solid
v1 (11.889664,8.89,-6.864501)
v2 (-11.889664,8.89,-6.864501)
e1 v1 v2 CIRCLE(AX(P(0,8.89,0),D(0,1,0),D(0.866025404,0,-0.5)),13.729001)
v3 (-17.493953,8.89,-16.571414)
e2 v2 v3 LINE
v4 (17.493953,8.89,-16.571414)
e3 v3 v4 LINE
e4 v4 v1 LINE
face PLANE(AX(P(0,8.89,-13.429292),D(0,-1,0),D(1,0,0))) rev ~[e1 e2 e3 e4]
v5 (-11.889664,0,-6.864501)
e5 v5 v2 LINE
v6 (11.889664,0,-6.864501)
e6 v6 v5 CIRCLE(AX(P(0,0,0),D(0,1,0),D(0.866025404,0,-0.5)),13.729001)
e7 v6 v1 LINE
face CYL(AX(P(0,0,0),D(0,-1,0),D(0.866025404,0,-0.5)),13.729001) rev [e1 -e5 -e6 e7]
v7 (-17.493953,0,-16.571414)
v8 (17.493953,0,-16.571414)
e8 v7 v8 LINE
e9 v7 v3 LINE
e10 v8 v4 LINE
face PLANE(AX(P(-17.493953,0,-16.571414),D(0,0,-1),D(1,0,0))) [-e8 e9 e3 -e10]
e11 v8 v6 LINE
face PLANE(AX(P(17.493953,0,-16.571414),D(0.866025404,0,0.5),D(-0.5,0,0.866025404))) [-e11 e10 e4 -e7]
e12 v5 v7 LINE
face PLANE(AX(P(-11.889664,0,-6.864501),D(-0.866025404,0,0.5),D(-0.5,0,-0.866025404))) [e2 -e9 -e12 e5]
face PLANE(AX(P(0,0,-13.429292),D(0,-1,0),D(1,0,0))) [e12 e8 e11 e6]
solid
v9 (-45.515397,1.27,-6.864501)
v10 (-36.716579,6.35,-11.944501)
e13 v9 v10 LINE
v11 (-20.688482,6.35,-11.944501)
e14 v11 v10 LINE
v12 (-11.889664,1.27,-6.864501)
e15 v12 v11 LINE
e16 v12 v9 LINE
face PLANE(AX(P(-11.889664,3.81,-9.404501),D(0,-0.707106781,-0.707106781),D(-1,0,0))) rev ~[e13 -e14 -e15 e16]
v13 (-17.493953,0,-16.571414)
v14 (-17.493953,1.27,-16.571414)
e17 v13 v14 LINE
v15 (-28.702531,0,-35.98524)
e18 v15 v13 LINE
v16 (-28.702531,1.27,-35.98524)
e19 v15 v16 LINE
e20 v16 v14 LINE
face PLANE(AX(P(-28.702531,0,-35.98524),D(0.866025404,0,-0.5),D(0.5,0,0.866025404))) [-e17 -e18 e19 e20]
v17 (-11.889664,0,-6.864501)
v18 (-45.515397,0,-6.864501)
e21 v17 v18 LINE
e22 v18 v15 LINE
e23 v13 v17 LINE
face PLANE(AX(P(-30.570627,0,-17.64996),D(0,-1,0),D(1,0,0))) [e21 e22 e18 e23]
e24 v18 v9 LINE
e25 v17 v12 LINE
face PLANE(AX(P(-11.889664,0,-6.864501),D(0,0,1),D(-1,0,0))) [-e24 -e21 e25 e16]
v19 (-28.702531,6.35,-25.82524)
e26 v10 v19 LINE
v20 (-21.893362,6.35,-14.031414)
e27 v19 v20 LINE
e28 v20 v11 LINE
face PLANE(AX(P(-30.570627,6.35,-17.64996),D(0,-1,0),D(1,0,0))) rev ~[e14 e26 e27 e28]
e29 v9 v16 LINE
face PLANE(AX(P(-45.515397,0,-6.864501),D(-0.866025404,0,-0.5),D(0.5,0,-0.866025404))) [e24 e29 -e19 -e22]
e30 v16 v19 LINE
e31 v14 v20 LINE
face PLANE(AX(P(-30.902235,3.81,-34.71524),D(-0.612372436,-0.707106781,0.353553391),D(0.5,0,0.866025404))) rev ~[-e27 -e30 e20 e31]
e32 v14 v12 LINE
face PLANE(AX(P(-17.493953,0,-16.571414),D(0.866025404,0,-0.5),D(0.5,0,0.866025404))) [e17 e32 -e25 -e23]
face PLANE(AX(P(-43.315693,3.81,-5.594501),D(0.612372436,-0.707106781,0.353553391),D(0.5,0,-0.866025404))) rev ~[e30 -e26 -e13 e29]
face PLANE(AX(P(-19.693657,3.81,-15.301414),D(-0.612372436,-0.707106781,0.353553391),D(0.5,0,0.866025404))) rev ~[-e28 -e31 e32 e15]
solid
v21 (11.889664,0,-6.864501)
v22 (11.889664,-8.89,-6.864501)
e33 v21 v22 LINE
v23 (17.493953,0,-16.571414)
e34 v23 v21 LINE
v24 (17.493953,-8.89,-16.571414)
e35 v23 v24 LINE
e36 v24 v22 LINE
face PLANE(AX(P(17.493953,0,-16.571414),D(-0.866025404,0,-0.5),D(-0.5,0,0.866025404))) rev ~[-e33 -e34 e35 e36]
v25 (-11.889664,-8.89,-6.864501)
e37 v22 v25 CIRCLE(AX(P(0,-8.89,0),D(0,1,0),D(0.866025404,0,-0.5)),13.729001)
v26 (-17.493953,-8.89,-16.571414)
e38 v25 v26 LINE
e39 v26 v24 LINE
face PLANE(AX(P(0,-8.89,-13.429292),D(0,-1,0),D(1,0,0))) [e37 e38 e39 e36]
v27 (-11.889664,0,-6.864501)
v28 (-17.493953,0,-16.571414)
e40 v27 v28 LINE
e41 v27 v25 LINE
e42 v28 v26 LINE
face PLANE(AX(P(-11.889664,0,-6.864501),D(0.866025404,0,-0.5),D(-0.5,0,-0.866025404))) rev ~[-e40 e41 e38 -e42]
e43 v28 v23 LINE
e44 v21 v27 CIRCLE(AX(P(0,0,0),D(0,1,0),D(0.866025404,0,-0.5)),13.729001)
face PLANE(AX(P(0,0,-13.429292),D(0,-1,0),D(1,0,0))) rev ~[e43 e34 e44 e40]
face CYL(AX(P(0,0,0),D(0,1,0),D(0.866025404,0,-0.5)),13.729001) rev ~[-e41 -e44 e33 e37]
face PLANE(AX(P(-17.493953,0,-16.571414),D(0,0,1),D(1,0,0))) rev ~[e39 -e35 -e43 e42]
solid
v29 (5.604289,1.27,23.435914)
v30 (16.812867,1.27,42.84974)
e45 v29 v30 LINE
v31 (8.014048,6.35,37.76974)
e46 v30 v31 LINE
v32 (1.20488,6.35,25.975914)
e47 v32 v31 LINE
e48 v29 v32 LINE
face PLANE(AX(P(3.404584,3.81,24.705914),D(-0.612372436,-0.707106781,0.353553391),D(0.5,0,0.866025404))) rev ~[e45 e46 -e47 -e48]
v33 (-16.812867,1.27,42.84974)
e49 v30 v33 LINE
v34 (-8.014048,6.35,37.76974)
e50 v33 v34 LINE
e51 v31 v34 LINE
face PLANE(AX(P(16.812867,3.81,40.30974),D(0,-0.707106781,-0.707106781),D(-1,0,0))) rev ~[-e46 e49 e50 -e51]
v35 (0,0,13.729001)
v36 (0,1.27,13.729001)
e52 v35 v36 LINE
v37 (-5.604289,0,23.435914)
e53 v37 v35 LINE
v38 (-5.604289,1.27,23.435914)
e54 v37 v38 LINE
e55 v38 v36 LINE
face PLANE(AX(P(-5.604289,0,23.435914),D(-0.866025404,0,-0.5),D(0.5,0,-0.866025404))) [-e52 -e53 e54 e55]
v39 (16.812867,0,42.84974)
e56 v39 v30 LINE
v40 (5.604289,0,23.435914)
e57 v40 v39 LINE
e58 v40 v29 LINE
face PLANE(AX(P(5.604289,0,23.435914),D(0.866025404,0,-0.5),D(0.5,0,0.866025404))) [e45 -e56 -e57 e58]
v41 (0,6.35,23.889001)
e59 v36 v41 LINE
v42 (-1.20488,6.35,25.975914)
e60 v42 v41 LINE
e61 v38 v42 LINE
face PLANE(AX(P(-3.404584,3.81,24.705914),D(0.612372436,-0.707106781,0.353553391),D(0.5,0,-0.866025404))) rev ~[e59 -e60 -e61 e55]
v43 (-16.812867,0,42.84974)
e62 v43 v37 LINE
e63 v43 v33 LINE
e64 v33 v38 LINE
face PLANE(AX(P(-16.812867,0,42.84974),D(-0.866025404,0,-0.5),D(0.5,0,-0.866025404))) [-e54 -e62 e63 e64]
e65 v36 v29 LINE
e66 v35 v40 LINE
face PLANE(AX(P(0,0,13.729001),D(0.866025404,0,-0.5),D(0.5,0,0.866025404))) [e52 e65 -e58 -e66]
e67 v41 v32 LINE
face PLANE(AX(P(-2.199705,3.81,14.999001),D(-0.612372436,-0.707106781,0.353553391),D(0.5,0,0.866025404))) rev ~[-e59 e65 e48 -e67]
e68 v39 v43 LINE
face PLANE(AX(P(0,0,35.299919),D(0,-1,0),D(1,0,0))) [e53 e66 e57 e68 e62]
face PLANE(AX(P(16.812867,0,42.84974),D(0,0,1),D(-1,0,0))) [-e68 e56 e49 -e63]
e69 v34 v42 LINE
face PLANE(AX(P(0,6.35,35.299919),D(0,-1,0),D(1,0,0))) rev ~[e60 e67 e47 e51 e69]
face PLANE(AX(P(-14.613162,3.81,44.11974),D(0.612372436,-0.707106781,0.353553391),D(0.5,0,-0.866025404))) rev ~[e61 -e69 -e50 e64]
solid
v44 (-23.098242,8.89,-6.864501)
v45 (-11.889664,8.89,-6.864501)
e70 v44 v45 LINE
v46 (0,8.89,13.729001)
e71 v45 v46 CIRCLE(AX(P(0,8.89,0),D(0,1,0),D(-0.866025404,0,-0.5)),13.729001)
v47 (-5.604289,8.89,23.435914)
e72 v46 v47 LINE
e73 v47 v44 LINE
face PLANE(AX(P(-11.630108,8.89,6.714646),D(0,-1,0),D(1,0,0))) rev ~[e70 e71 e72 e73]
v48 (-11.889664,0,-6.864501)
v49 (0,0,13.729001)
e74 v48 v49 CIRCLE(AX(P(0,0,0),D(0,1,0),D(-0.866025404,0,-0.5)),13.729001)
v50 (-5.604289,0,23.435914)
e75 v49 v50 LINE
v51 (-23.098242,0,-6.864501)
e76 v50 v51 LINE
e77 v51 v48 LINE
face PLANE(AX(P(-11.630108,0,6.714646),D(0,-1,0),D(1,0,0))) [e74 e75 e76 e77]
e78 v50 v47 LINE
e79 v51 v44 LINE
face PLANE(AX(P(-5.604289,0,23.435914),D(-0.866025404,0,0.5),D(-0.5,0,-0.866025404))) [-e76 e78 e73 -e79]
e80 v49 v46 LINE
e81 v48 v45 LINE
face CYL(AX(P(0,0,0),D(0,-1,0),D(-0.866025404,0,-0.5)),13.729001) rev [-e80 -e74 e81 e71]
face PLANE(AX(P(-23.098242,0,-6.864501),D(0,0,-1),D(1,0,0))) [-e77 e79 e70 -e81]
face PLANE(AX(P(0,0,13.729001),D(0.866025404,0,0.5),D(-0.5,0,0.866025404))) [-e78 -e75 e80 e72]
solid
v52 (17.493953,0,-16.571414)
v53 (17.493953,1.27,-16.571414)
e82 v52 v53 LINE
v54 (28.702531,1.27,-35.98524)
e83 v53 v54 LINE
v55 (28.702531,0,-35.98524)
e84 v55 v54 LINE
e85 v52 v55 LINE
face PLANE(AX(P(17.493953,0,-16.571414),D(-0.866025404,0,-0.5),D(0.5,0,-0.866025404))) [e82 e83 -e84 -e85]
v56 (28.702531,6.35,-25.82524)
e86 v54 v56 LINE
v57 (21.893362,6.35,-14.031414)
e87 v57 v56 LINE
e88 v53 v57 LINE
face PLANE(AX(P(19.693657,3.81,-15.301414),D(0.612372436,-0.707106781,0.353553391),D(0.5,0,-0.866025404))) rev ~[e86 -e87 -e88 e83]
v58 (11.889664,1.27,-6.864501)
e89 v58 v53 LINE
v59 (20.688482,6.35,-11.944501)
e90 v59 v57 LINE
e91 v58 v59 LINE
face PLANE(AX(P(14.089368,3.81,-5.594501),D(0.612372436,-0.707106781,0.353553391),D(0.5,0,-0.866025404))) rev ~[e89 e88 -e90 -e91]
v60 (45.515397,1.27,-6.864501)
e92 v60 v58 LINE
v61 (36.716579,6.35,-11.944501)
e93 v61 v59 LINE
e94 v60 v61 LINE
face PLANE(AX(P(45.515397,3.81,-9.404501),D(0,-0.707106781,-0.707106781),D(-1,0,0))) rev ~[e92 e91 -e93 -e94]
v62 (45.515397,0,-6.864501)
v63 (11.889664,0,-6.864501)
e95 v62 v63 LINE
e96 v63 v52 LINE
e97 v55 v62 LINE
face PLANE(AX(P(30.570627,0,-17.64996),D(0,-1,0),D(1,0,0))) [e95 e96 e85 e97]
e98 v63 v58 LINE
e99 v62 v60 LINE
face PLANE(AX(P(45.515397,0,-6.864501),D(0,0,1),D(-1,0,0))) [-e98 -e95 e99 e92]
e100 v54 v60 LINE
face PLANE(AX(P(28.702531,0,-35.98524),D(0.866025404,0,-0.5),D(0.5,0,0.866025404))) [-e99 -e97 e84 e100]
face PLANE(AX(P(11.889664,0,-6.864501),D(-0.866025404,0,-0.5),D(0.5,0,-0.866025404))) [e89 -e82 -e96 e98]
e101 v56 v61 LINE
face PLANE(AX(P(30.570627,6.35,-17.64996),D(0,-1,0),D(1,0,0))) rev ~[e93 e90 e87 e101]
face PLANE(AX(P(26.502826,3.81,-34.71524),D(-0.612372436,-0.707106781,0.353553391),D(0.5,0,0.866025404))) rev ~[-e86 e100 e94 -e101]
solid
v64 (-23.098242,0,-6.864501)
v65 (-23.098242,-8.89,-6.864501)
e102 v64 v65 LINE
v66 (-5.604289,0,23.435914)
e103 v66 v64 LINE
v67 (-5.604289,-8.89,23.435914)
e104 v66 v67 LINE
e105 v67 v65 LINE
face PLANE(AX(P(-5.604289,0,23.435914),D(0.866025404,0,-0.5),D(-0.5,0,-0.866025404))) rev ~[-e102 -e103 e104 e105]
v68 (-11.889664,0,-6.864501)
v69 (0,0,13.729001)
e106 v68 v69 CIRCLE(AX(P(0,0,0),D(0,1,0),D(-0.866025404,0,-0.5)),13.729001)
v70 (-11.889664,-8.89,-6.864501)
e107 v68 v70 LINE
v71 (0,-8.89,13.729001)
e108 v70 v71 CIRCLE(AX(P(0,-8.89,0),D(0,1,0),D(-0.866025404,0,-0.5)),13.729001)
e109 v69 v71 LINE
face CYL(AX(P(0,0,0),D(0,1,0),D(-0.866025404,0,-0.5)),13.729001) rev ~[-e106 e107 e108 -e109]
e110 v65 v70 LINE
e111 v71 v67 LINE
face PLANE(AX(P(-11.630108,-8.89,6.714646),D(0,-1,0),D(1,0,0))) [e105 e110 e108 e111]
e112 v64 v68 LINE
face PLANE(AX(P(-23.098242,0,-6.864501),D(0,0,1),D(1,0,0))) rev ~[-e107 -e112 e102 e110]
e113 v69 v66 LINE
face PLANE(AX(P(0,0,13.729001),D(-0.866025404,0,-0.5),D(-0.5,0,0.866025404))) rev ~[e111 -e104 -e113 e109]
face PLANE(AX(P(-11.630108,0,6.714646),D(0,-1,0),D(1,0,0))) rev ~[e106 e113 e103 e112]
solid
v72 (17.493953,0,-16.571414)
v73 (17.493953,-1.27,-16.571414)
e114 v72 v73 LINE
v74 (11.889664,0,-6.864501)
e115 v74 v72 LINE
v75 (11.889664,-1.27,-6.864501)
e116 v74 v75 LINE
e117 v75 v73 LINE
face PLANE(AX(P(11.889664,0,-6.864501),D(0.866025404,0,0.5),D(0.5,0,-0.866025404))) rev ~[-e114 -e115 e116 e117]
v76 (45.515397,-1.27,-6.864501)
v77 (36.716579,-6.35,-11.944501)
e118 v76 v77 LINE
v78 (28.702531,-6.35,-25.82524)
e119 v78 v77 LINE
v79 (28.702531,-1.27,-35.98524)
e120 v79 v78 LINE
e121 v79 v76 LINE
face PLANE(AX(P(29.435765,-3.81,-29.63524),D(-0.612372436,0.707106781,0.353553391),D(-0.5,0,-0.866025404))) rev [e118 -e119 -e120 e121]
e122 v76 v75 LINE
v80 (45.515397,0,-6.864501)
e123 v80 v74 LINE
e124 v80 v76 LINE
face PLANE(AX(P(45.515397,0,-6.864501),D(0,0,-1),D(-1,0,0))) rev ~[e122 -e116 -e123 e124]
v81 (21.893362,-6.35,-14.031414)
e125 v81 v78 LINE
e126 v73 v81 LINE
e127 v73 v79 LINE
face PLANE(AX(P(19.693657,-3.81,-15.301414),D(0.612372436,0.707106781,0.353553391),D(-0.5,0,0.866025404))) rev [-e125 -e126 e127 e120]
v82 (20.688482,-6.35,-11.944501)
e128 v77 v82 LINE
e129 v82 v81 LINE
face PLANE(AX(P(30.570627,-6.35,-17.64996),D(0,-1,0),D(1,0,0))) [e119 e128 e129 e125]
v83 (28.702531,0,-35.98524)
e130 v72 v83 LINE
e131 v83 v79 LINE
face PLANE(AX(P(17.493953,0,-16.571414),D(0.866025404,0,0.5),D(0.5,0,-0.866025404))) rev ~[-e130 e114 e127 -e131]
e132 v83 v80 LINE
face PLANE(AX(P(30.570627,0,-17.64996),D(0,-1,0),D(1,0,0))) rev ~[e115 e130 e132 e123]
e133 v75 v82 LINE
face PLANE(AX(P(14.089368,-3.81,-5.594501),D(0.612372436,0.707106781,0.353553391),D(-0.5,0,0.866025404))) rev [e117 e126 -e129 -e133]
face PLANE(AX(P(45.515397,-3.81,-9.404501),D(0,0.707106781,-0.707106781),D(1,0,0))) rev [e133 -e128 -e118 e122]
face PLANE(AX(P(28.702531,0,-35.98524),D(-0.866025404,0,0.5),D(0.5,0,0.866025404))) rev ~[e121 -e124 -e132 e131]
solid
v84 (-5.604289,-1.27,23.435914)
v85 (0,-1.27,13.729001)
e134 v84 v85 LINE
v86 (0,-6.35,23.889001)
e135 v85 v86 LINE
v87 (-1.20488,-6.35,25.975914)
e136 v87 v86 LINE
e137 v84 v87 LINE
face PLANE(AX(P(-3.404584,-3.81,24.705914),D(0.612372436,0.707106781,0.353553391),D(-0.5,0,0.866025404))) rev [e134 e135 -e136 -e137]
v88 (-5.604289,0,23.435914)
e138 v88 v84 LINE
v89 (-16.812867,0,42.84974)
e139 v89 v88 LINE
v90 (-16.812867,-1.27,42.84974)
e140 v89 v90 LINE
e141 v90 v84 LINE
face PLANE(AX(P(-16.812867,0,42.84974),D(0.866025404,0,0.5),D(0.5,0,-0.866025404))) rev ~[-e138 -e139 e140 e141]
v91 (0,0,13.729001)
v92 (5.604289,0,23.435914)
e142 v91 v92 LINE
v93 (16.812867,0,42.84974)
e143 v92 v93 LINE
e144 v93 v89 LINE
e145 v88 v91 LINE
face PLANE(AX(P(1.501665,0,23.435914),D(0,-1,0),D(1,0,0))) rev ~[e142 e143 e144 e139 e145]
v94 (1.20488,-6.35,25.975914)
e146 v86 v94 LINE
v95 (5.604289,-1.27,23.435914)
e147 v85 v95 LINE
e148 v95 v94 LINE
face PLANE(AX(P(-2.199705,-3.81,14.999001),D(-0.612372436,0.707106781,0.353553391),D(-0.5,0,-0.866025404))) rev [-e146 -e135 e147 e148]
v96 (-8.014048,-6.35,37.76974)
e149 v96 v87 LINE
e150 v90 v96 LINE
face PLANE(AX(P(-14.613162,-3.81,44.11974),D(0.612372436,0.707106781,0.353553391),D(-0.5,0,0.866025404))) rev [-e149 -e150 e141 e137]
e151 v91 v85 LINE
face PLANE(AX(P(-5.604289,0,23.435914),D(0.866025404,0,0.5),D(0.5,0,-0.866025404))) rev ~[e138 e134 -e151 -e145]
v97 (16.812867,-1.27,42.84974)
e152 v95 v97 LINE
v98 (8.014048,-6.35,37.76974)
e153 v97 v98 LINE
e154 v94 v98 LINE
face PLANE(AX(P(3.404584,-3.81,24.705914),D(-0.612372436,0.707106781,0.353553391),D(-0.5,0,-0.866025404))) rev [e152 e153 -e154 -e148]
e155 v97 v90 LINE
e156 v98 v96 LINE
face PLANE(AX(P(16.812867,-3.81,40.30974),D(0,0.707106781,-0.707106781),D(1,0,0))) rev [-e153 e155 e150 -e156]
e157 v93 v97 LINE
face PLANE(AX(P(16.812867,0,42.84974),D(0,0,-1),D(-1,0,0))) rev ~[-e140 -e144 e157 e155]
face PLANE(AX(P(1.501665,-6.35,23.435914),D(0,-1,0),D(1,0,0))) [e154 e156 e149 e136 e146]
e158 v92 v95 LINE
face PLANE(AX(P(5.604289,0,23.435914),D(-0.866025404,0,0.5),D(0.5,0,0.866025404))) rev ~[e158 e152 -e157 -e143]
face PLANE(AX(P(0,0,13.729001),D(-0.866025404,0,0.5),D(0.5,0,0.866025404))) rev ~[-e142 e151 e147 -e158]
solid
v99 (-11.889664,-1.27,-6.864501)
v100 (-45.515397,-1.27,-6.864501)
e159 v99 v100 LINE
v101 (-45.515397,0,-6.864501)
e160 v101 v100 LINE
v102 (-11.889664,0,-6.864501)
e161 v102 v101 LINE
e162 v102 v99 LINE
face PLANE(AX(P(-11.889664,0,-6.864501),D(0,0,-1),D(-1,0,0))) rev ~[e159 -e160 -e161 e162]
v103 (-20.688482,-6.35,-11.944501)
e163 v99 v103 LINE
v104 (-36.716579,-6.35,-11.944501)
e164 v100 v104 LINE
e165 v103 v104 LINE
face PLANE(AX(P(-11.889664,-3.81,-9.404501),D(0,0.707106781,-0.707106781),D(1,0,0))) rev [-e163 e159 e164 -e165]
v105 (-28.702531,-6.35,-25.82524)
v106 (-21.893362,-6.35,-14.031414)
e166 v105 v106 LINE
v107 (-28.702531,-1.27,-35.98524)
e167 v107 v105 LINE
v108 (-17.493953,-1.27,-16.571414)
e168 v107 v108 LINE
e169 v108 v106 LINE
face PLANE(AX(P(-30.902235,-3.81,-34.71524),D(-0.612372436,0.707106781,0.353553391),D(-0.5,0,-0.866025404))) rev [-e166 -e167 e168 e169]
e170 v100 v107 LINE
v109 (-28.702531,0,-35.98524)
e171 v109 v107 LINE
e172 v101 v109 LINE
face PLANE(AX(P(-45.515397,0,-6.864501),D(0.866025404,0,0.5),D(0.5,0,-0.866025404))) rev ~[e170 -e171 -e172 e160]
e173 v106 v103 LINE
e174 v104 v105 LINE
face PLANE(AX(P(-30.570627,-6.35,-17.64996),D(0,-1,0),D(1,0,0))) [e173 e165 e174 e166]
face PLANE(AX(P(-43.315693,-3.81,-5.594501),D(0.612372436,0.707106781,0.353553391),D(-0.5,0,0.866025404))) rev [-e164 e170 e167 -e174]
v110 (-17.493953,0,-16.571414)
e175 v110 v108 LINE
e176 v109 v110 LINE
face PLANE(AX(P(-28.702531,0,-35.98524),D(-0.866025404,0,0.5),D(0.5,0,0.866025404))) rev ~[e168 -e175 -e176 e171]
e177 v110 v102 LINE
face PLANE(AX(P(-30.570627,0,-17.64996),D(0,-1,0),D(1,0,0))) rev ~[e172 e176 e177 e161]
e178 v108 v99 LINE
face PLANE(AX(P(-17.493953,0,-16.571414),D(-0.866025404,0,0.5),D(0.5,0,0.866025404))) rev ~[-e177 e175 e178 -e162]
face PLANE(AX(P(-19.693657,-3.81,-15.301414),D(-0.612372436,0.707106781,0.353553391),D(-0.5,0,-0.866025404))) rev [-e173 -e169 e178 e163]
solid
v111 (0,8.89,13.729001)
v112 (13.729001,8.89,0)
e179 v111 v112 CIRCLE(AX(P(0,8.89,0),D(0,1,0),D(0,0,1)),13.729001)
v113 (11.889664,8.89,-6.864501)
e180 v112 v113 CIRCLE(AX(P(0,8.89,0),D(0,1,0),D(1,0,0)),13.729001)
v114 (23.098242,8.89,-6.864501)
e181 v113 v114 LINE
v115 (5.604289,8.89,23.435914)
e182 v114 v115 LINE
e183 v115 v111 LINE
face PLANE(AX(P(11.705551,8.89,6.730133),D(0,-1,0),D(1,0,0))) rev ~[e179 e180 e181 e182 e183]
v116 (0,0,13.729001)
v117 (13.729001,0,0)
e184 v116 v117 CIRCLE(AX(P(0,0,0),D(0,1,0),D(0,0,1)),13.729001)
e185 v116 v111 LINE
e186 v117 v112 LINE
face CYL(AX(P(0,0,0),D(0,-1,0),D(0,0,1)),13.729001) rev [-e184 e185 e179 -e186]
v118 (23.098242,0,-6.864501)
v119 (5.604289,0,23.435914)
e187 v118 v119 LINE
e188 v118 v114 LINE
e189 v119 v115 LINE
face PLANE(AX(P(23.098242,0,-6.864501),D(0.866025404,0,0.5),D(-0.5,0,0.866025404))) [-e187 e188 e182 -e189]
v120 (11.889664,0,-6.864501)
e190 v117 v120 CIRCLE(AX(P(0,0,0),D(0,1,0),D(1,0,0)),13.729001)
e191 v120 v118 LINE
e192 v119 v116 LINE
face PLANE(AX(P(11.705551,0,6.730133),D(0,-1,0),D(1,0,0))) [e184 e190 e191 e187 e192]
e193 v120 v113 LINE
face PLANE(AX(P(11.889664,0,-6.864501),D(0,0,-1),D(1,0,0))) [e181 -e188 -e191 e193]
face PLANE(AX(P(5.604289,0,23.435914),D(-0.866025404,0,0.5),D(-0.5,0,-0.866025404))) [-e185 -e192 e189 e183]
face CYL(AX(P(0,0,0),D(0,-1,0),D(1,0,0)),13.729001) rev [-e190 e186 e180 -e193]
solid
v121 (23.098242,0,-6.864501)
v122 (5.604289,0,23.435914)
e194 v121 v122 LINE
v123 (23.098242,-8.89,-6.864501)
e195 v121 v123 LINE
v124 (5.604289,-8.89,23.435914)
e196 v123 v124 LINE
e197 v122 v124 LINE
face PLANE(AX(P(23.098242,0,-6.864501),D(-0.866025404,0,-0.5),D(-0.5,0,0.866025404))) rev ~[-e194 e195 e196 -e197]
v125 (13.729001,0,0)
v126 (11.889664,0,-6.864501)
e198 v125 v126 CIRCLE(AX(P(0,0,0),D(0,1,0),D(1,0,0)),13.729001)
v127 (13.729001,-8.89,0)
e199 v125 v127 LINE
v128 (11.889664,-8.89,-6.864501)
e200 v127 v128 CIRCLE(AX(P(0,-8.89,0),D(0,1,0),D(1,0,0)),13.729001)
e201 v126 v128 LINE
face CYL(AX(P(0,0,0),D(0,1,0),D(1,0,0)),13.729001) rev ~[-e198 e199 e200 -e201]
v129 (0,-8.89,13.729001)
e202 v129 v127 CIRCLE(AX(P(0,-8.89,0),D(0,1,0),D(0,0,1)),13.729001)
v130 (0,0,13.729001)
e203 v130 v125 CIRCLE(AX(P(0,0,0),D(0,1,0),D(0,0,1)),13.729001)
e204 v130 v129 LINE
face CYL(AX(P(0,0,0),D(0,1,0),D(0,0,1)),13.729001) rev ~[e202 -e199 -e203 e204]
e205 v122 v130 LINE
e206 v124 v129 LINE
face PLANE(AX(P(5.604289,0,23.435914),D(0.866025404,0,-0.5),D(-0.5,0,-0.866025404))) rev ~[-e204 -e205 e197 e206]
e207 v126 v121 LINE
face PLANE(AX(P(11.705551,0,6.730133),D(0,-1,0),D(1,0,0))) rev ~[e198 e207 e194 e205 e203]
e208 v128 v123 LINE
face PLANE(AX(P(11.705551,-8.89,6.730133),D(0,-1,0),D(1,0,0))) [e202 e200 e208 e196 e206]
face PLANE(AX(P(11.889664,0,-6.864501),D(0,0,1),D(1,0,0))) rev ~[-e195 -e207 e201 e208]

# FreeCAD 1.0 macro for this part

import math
import FreeCAD as App
import Part
import Sketcher
Q = App.Units.Quantity


def edges_at(feature, points):
    """Names of the edges that pass closest to the given points."""
    edges = feature.Shape.Edges
    near = lambda p: min(range(len(edges)), key=lambda i: edges[i].distToShape(Part.Vertex(*p))[0])
    return sorted({f"Edge{near(p) + 1}" for p in points})

doc = App.newDocument("Part")
body = doc.addObject("PartDesign::Body", "Body")

sketch1 = doc.addObject("Sketcher::SketchObject", "Sketch")
body.addObject(sketch1)
sketch1.AttachmentSupport = (doc.XZ_Plane, [""])
sketch1.MapMode = "FlatFace"
sketch1.addGeometry([
    Part.LineSegment(App.Vector(46, -7, 0), App.Vector(12, -7, 0)),
    Part.LineSegment(App.Vector(12, -7, 0), App.Vector(17, -17, 0)),
    Part.LineSegment(App.Vector(17, -17, 0), App.Vector(29, -36, 0)),
    Part.LineSegment(App.Vector(29, -36, 0), App.Vector(46, -7, 0)),
], False)
sketch1.addConstraint([
    Sketcher.Constraint("Coincident", 0, 2, 1, 1),
    Sketcher.Constraint("Coincident", 1, 2, 2, 1),
    Sketcher.Constraint("Coincident", 2, 2, 3, 1),
    Sketcher.Constraint("Coincident", 3, 2, 0, 1),
    Sketcher.Constraint("Horizontal", 0),
    Sketcher.Constraint("Parallel", 1, 2),
    Sketcher.Constraint("Angle", 1, Q("-60 deg")),
    Sketcher.Constraint("Angle", 3, Q("60 deg")),
    Sketcher.Constraint("DistanceY", 0, 2, -1, 1, 6.864501),
    Sketcher.Constraint("DistanceX", 0, 2, 0, 1, 33.625733),
    Sketcher.Constraint("DistanceX", -1, 1, 2, 2, 28.702531),
    Sketcher.Constraint("DistanceX", 0, 2, 1, 2, 5.604289),
])
pad1 = doc.addObject("PartDesign::Pad", "Pad")
body.addObject(pad1)
pad1.Profile = sketch1
pad1.Length = Q("0.25 in")
doc.recompute()

chamfer = doc.addObject("PartDesign::Chamfer", "Chamfer")
body.addObject(chamfer)
chamfer.Base = (pad1, edges_at(pad1, [(28.703, -6.35, -6.865), (23.098, -6.35, -26.278)]))
chamfer.Size = Q("0.2 in")
doc.recompute()

chamfer2 = doc.addObject("PartDesign::Chamfer", "Chamfer001")
body.addObject(chamfer2)
chamfer2.Base = (chamfer, edges_at(chamfer, [(37.109, -6.35, -21.425)]))
chamfer2.Size = Q("0.2 in")
body2 = doc.addObject("PartDesign::Body", "Body001")

sketch2 = doc.addObject("Sketcher::SketchObject", "Sketch001")
body2.addObject(sketch2)
sketch2.AttachmentSupport = (doc.getObject("XZ_Plane001"), [""])
sketch2.MapMode = "FlatFace"
sketch2.addGeometry([
    Part.LineSegment(App.Vector(-46, -7, 0), App.Vector(-29, -36, 0)),
    Part.LineSegment(App.Vector(-29, -36, 0), App.Vector(-17, -17, 0)),
    Part.LineSegment(App.Vector(-17, -17, 0), App.Vector(-12, -7, 0)),
    Part.LineSegment(App.Vector(-12, -7, 0), App.Vector(-46, -7, 0)),
], False)
sketch2.addConstraint([
    Sketcher.Constraint("Coincident", 0, 2, 1, 1),
    Sketcher.Constraint("Coincident", 1, 2, 2, 1),
    Sketcher.Constraint("Coincident", 2, 2, 3, 1),
    Sketcher.Constraint("Coincident", 3, 2, 0, 1),
    Sketcher.Constraint("Horizontal", 3),
    Sketcher.Constraint("Parallel", 1, 2),
    Sketcher.Constraint("Angle", 0, Q("-60 deg")),
    Sketcher.Constraint("Angle", 1, Q("60 deg")),
    Sketcher.Constraint("DistanceY", 2, 2, -1, 1, 6.864501),
    Sketcher.Constraint("DistanceX", 3, 2, 3, 1, 33.625733),
    Sketcher.Constraint("DistanceX", 0, 2, -1, 1, 28.702531),
    Sketcher.Constraint("DistanceX", 1, 2, 2, 2, 5.604289),
])
pad2 = doc.addObject("PartDesign::Pad", "Pad001")
body2.addObject(pad2)
pad2.Profile = sketch2
pad2.Length = Q("0.25 in")
doc.recompute()

chamfer3 = doc.addObject("PartDesign::Chamfer", "Chamfer002")
body2.addObject(chamfer3)
chamfer3.Base = (pad2, edges_at(pad2, [(-23.098, -6.35, -26.278), (-28.703, -6.35, -6.865), (-37.109, -6.35, -21.425)]))
chamfer3.Size = Q("0.2 in")
body3 = doc.addObject("PartDesign::Body", "Body002")

sketch3 = doc.addObject("Sketcher::SketchObject", "Sketch002")
body3.addObject(sketch3)
sketch3.AttachmentSupport = (doc.getObject("XZ_Plane002"), [""])
sketch3.MapMode = "FlatFace"
sketch3.addGeometry([
    Part.LineSegment(App.Vector(-6, 23, 0), App.Vector(0, 14, 0)),
    Part.LineSegment(App.Vector(0, 14, 0), App.Vector(6, 23, 0)),
    Part.LineSegment(App.Vector(6, 23, 0), App.Vector(17, 43, 0)),
    Part.LineSegment(App.Vector(17, 43, 0), App.Vector(-17, 43, 0)),
    Part.LineSegment(App.Vector(-17, 43, 0), App.Vector(-6, 23, 0)),
], False)
sketch3.addConstraint([
    Sketcher.Constraint("Coincident", 0, 2, 1, 1),
    Sketcher.Constraint("Coincident", 1, 2, 2, 1),
    Sketcher.Constraint("Coincident", 2, 2, 3, 1),
    Sketcher.Constraint("Coincident", 3, 2, 4, 1),
    Sketcher.Constraint("Coincident", 4, 2, 0, 1),
    Sketcher.Constraint("Horizontal", 3),
    Sketcher.Constraint("Symmetric", 1, 2, 4, 2, -2),
    Sketcher.Constraint("PointOnObject", 0, 2, -2),
    Sketcher.Constraint("Parallel", 1, 2),
    Sketcher.Constraint("Parallel", 0, 4),
    Sketcher.Constraint("Angle", 0, Q("-60 deg")),
    Sketcher.Constraint("DistanceY", -1, 1, 0, 2, 13.729001),
    Sketcher.Constraint("DistanceX", 3, 2, 3, 1, 33.625733),
    Sketcher.Constraint("DistanceX", -1, 1, 1, 2, 5.604289),
])
pad3 = doc.addObject("PartDesign::Pad", "Pad002")
body3.addObject(pad3)
pad3.Profile = sketch3
pad3.Length = Q("0.25 in")
doc.recompute()

chamfer4 = doc.addObject("PartDesign::Chamfer", "Chamfer003")
body3.addObject(chamfer4)
chamfer4.Base = (pad3, edges_at(pad3, [(-11.209, -6.35, 33.143), (11.209, -6.35, 33.143), (0, -6.35, 42.85)]))
chamfer4.Size = Q("0.2 in")
body4 = doc.addObject("PartDesign::Body", "Body003")

sketch4 = doc.addObject("Sketcher::SketchObject", "Sketch003")
body4.addObject(sketch4)
sketch4.AttachmentSupport = (doc.getObject("XZ_Plane003"), [""])
sketch4.MapMode = "FlatFace"
sketch4.addGeometry([
    Part.LineSegment(App.Vector(23, -7, 0), App.Vector(6, 23, 0)),
    Part.LineSegment(App.Vector(6, 23, 0), App.Vector(0, 14, 0)),
    Part.ArcOfCircle(Part.Circle(App.Vector(0, 0, 0), App.Vector(0, 0, 1), 14), math.radians(0), math.radians(90)),
    Part.ArcOfCircle(Part.Circle(App.Vector(0, 0, 0), App.Vector(0, 0, 1), 14), math.radians(-30), math.radians(0)),
    Part.LineSegment(App.Vector(12, -7, 0), App.Vector(23, -7, 0)),
], False)
sketch4.addConstraint([
    Sketcher.Constraint("Coincident", 0, 2, 1, 1),
    Sketcher.Constraint("Coincident", 1, 2, 2, 2),
    Sketcher.Constraint("Tangent", 2, 1, 3, 2),
    Sketcher.Constraint("Coincident", 3, 1, 4, 1),
    Sketcher.Constraint("Coincident", 4, 2, 0, 1),
    Sketcher.Constraint("Horizontal", 4),
    Sketcher.Constraint("Coincident", 2, 3, -1, 1),
    Sketcher.Constraint("Equal", 2, 3),
    Sketcher.Constraint("PointOnObject", 1, 2, -2),
    Sketcher.Constraint("PointOnObject", 2, 1, -1),
    Sketcher.Constraint("Angle", 0, Q("120 deg")),
    Sketcher.Constraint("Angle", 1, Q("-120 deg")),
    Sketcher.Constraint("Radius", 2, 13.729001),
    Sketcher.Constraint("DistanceY", 3, 1, -1, 1, 6.864501),
    Sketcher.Constraint("DistanceX", 4, 1, 4, 2, 11.208578),
])
pad4 = doc.addObject("PartDesign::Pad", "Pad003")
body4.addObject(pad4)
pad4.Profile = sketch4
pad4.Length = Q("0.35 in")
body5 = doc.addObject("PartDesign::Body", "Body004")

sketch5 = doc.addObject("Sketcher::SketchObject", "Sketch004")
body5.addObject(sketch5)
sketch5.AttachmentSupport = (doc.getObject("XZ_Plane004"), [""])
sketch5.MapMode = "FlatFace"
sketch5.addGeometry([
    Part.ArcOfCircle(Part.Circle(App.Vector(0, 0, 0), App.Vector(0, 0, 1), 14), math.radians(-150), math.radians(-30)),
    Part.LineSegment(App.Vector(-12, -7, 0), App.Vector(-17, -17, 0)),
    Part.LineSegment(App.Vector(-17, -17, 0), App.Vector(17, -17, 0)),
    Part.LineSegment(App.Vector(17, -17, 0), App.Vector(12, -7, 0)),
], False)
sketch5.addConstraint([
    Sketcher.Constraint("Coincident", 0, 1, 1, 1),
    Sketcher.Constraint("Coincident", 1, 2, 2, 1),
    Sketcher.Constraint("Coincident", 2, 2, 3, 1),
    Sketcher.Constraint("Coincident", 3, 2, 0, 2),
    Sketcher.Constraint("Horizontal", 2),
    Sketcher.Constraint("Coincident", 0, 3, -1, 1),
    Sketcher.Constraint("Horizontal", 0, 1, 3, 2),
    Sketcher.Constraint("Equal", 1, 3),
    Sketcher.Constraint("Angle", 1, Q("-120 deg")),
    Sketcher.Constraint("Radius", 0, 13.729001),
    Sketcher.Constraint("DistanceY", 0, 1, -1, 1, 6.864501),
    Sketcher.Constraint("DistanceX", 2, 1, 2, 2, 34.987906),
])
pad5 = doc.addObject("PartDesign::Pad", "Pad004")
body5.addObject(pad5)
pad5.Profile = sketch5
pad5.Length = Q("0.35 in")
body6 = doc.addObject("PartDesign::Body", "Body005")

sketch6 = doc.addObject("Sketcher::SketchObject", "Sketch005")
body6.addObject(sketch6)
sketch6.AttachmentSupport = (doc.getObject("XZ_Plane005"), [""])
sketch6.MapMode = "FlatFace"
sketch6.addGeometry([
    Part.LineSegment(App.Vector(0, 14, 0), App.Vector(-6, 23, 0)),
    Part.LineSegment(App.Vector(-6, 23, 0), App.Vector(-23, -7, 0)),
    Part.LineSegment(App.Vector(-23, -7, 0), App.Vector(-12, -7, 0)),
    Part.ArcOfCircle(Part.Circle(App.Vector(0, 0, 0), App.Vector(0, 0, 1), 14), math.radians(90), math.radians(210)),
], False)
sketch6.addConstraint([
    Sketcher.Constraint("Coincident", 0, 2, 1, 1),
    Sketcher.Constraint("Coincident", 1, 2, 2, 1),
    Sketcher.Constraint("Coincident", 2, 2, 3, 2),
    Sketcher.Constraint("Coincident", 3, 1, 0, 1),
    Sketcher.Constraint("Horizontal", 2),
    Sketcher.Constraint("Coincident", 3, 3, -1, 1),
    Sketcher.Constraint("PointOnObject", 3, 1, -2),
    Sketcher.Constraint("Angle", 0, Q("120 deg")),
    Sketcher.Constraint("Angle", 1, Q("-120 deg")),
    Sketcher.Constraint("Radius", 3, 13.729001),
    Sketcher.Constraint("DistanceY", 1, 2, -1, 1, 6.864501),
    Sketcher.Constraint("DistanceX", 2, 1, 2, 2, 11.208578),
])
pad6 = doc.addObject("PartDesign::Pad", "Pad005")
body6.addObject(pad6)
pad6.Profile = sketch6
pad6.Length = Q("0.35 in")
body7 = doc.addObject("PartDesign::Body", "Body006")

sketch7 = doc.addObject("Sketcher::SketchObject", "Sketch006")
body7.addObject(sketch7)
sketch7.AttachmentSupport = (doc.getObject("XZ_Plane006"), [""])
sketch7.MapMode = "FlatFace"
sketch7.addGeometry([
    Part.LineSegment(App.Vector(46, -7, 0), App.Vector(12, -7, 0)),
    Part.LineSegment(App.Vector(12, -7, 0), App.Vector(17, -17, 0)),
    Part.LineSegment(App.Vector(17, -17, 0), App.Vector(29, -36, 0)),
    Part.LineSegment(App.Vector(29, -36, 0), App.Vector(46, -7, 0)),
], False)
sketch7.addConstraint([
    Sketcher.Constraint("Coincident", 0, 2, 1, 1),
    Sketcher.Constraint("Coincident", 1, 2, 2, 1),
    Sketcher.Constraint("Coincident", 2, 2, 3, 1),
    Sketcher.Constraint("Coincident", 3, 2, 0, 1),
    Sketcher.Constraint("Horizontal", 0),
    Sketcher.Constraint("Parallel", 1, 2),
    Sketcher.Constraint("Angle", 1, Q("-60 deg")),
    Sketcher.Constraint("Angle", 3, Q("60 deg")),
    Sketcher.Constraint("DistanceY", 0, 2, -1, 1, 6.864501),
    Sketcher.Constraint("DistanceX", 0, 2, 0, 1, 33.625733),
    Sketcher.Constraint("DistanceX", -1, 1, 2, 2, 28.702531),
    Sketcher.Constraint("DistanceX", 0, 2, 1, 2, 5.604289),
])
pad7 = doc.addObject("PartDesign::Pad", "Pad006")
body7.addObject(pad7)
pad7.Profile = sketch7
pad7.Length = Q("0.25 in")
pad7.Reversed = True
doc.recompute()

chamfer5 = doc.addObject("PartDesign::Chamfer", "Chamfer004")
body7.addObject(chamfer5)
chamfer5.Base = (pad7, edges_at(pad7, [(37.109, 6.35, -21.425), (28.703, 6.35, -6.865), (23.098, 6.35, -26.278)]))
chamfer5.Size = Q("0.2 in")
body8 = doc.addObject("PartDesign::Body", "Body007")

sketch8 = doc.addObject("Sketcher::SketchObject", "Sketch007")
body8.addObject(sketch8)
sketch8.AttachmentSupport = (doc.getObject("XZ_Plane007"), [""])
sketch8.MapMode = "FlatFace"
sketch8.addGeometry([
    Part.LineSegment(App.Vector(-46, -7, 0), App.Vector(-29, -36, 0)),
    Part.LineSegment(App.Vector(-29, -36, 0), App.Vector(-17, -17, 0)),
    Part.LineSegment(App.Vector(-17, -17, 0), App.Vector(-12, -7, 0)),
    Part.LineSegment(App.Vector(-12, -7, 0), App.Vector(-46, -7, 0)),
], False)
sketch8.addConstraint([
    Sketcher.Constraint("Coincident", 0, 2, 1, 1),
    Sketcher.Constraint("Coincident", 1, 2, 2, 1),
    Sketcher.Constraint("Coincident", 2, 2, 3, 1),
    Sketcher.Constraint("Coincident", 3, 2, 0, 1),
    Sketcher.Constraint("Horizontal", 3),
    Sketcher.Constraint("Parallel", 1, 2),
    Sketcher.Constraint("Angle", 0, Q("-60 deg")),
    Sketcher.Constraint("Angle", 1, Q("60 deg")),
    Sketcher.Constraint("DistanceY", 2, 2, -1, 1, 6.864501),
    Sketcher.Constraint("DistanceX", 3, 2, 3, 1, 33.625733),
    Sketcher.Constraint("DistanceX", 0, 2, -1, 1, 28.702531),
    Sketcher.Constraint("DistanceX", 1, 2, 2, 2, 5.604289),
])
pad8 = doc.addObject("PartDesign::Pad", "Pad007")
body8.addObject(pad8)
pad8.Profile = sketch8
pad8.Length = Q("0.25 in")
pad8.Reversed = True
doc.recompute()

chamfer6 = doc.addObject("PartDesign::Chamfer", "Chamfer005")
body8.addObject(chamfer6)
chamfer6.Base = (pad8, edges_at(pad8, [(-23.098, 6.35, -26.278), (-37.109, 6.35, -21.425), (-28.703, 6.35, -6.865)]))
chamfer6.Size = Q("0.2 in")
body9 = doc.addObject("PartDesign::Body", "Body008")

sketch9 = doc.addObject("Sketcher::SketchObject", "Sketch008")
body9.addObject(sketch9)
sketch9.AttachmentSupport = (doc.getObject("XZ_Plane008"), [""])
sketch9.MapMode = "FlatFace"
sketch9.addGeometry([
    Part.LineSegment(App.Vector(6, 23, 0), App.Vector(17, 43, 0)),
    Part.LineSegment(App.Vector(17, 43, 0), App.Vector(-17, 43, 0)),
    Part.LineSegment(App.Vector(-17, 43, 0), App.Vector(-6, 23, 0)),
    Part.LineSegment(App.Vector(-6, 23, 0), App.Vector(0, 14, 0)),
    Part.LineSegment(App.Vector(0, 14, 0), App.Vector(6, 23, 0)),
], False)
sketch9.addConstraint([
    Sketcher.Constraint("Coincident", 0, 2, 1, 1),
    Sketcher.Constraint("Coincident", 1, 2, 2, 1),
    Sketcher.Constraint("Coincident", 2, 2, 3, 1),
    Sketcher.Constraint("Coincident", 3, 2, 4, 1),
    Sketcher.Constraint("Coincident", 4, 2, 0, 1),
    Sketcher.Constraint("Horizontal", 1),
    Sketcher.Constraint("Symmetric", 2, 2, 4, 2, -2),
    Sketcher.Constraint("PointOnObject", 3, 2, -2),
    Sketcher.Constraint("Parallel", 2, 3),
    Sketcher.Constraint("Parallel", 0, 4),
    Sketcher.Constraint("Angle", 0, Q("60 deg")),
    Sketcher.Constraint("DistanceY", -1, 1, 3, 2, 13.729001),
    Sketcher.Constraint("DistanceX", 1, 2, 1, 1, 33.625733),
    Sketcher.Constraint("DistanceX", 2, 2, -1, 1, 5.604289),
])
pad9 = doc.addObject("PartDesign::Pad", "Pad008")
body9.addObject(pad9)
pad9.Profile = sketch9
pad9.Length = Q("0.25 in")
pad9.Reversed = True
doc.recompute()

chamfer7 = doc.addObject("PartDesign::Chamfer", "Chamfer006")
body9.addObject(chamfer7)
chamfer7.Base = (pad9, edges_at(pad9, [(-11.209, 6.35, 33.143), (0, 6.35, 42.85), (11.209, 6.35, 33.143)]))
chamfer7.Size = Q("0.2 in")
body10 = doc.addObject("PartDesign::Body", "Body009")

sketch10 = doc.addObject("Sketcher::SketchObject", "Sketch009")
body10.addObject(sketch10)
sketch10.AttachmentSupport = (doc.getObject("XZ_Plane009"), [""])
sketch10.MapMode = "FlatFace"
sketch10.addGeometry([
    Part.LineSegment(App.Vector(0, 14, 0), App.Vector(-6, 23, 0)),
    Part.LineSegment(App.Vector(-6, 23, 0), App.Vector(-23, -7, 0)),
    Part.LineSegment(App.Vector(-23, -7, 0), App.Vector(-12, -7, 0)),
    Part.ArcOfCircle(Part.Circle(App.Vector(0, 0, 0), App.Vector(0, 0, 1), 14), math.radians(90), math.radians(210)),
], False)
sketch10.addConstraint([
    Sketcher.Constraint("Coincident", 0, 2, 1, 1),
    Sketcher.Constraint("Coincident", 1, 2, 2, 1),
    Sketcher.Constraint("Coincident", 2, 2, 3, 2),
    Sketcher.Constraint("Coincident", 3, 1, 0, 1),
    Sketcher.Constraint("Horizontal", 2),
    Sketcher.Constraint("Coincident", 3, 3, -1, 1),
    Sketcher.Constraint("PointOnObject", 3, 1, -2),
    Sketcher.Constraint("Angle", 0, Q("120 deg")),
    Sketcher.Constraint("Angle", 1, Q("-120 deg")),
    Sketcher.Constraint("Radius", 3, 13.729001),
    Sketcher.Constraint("DistanceY", 1, 2, -1, 1, 6.864501),
    Sketcher.Constraint("DistanceX", 2, 1, 2, 2, 11.208578),
])
pad10 = doc.addObject("PartDesign::Pad", "Pad009")
body10.addObject(pad10)
pad10.Profile = sketch10
pad10.Length = Q("0.35 in")
pad10.Reversed = True
body11 = doc.addObject("PartDesign::Body", "Body010")

sketch11 = doc.addObject("Sketcher::SketchObject", "Sketch010")
body11.addObject(sketch11)
sketch11.AttachmentSupport = (doc.getObject("XZ_Plane010"), [""])
sketch11.MapMode = "FlatFace"
sketch11.addGeometry([
    Part.ArcOfCircle(Part.Circle(App.Vector(0, 0, 0), App.Vector(0, 0, 1), 14), math.radians(-150), math.radians(-30)),
    Part.LineSegment(App.Vector(-12, -7, 0), App.Vector(-17, -17, 0)),
    Part.LineSegment(App.Vector(-17, -17, 0), App.Vector(17, -17, 0)),
    Part.LineSegment(App.Vector(17, -17, 0), App.Vector(12, -7, 0)),
], False)
sketch11.addConstraint([
    Sketcher.Constraint("Coincident", 0, 1, 1, 1),
    Sketcher.Constraint("Coincident", 1, 2, 2, 1),
    Sketcher.Constraint("Coincident", 2, 2, 3, 1),
    Sketcher.Constraint("Coincident", 3, 2, 0, 2),
    Sketcher.Constraint("Horizontal", 2),
    Sketcher.Constraint("Coincident", 0, 3, -1, 1),
    Sketcher.Constraint("Horizontal", 0, 1, 3, 2),
    Sketcher.Constraint("Equal", 1, 3),
    Sketcher.Constraint("Angle", 1, Q("-120 deg")),
    Sketcher.Constraint("Radius", 0, 13.729001),
    Sketcher.Constraint("DistanceY", 0, 1, -1, 1, 6.864501),
    Sketcher.Constraint("DistanceX", 2, 1, 2, 2, 34.987906),
])
pad11 = doc.addObject("PartDesign::Pad", "Pad010")
body11.addObject(pad11)
pad11.Profile = sketch11
pad11.Length = Q("0.35 in")
pad11.Reversed = True
body12 = doc.addObject("PartDesign::Body", "Body011")

sketch12 = doc.addObject("Sketcher::SketchObject", "Sketch011")
body12.addObject(sketch12)
sketch12.AttachmentSupport = (doc.getObject("XZ_Plane011"), [""])
sketch12.MapMode = "FlatFace"
sketch12.addGeometry([
    Part.LineSegment(App.Vector(23, -7, 0), App.Vector(6, 23, 0)),
    Part.LineSegment(App.Vector(6, 23, 0), App.Vector(0, 14, 0)),
    Part.ArcOfCircle(Part.Circle(App.Vector(0, 0, 0), App.Vector(0, 0, 1), 14), math.radians(0), math.radians(90)),
    Part.ArcOfCircle(Part.Circle(App.Vector(0, 0, 0), App.Vector(0, 0, 1), 14), math.radians(-30), math.radians(0)),
    Part.LineSegment(App.Vector(12, -7, 0), App.Vector(23, -7, 0)),
], False)
sketch12.addConstraint([
    Sketcher.Constraint("Coincident", 0, 2, 1, 1),
    Sketcher.Constraint("Coincident", 1, 2, 2, 2),
    Sketcher.Constraint("Tangent", 2, 1, 3, 2),
    Sketcher.Constraint("Coincident", 3, 1, 4, 1),
    Sketcher.Constraint("Coincident", 4, 2, 0, 1),
    Sketcher.Constraint("Horizontal", 4),
    Sketcher.Constraint("Coincident", 2, 3, -1, 1),
    Sketcher.Constraint("Equal", 2, 3),
    Sketcher.Constraint("PointOnObject", 1, 2, -2),
    Sketcher.Constraint("PointOnObject", 2, 1, -1),
    Sketcher.Constraint("Angle", 0, Q("120 deg")),
    Sketcher.Constraint("Angle", 1, Q("-120 deg")),
    Sketcher.Constraint("Radius", 2, 13.729001),
    Sketcher.Constraint("DistanceY", 3, 1, -1, 1, 6.864501),
    Sketcher.Constraint("DistanceX", 4, 1, 4, 2, 11.208578),
])
pad12 = doc.addObject("PartDesign::Pad", "Pad011")
body12.addObject(pad12)
pad12.Profile = sketch12
pad12.Length = Q("0.35 in")
pad12.Reversed = True

doc.recompute()
